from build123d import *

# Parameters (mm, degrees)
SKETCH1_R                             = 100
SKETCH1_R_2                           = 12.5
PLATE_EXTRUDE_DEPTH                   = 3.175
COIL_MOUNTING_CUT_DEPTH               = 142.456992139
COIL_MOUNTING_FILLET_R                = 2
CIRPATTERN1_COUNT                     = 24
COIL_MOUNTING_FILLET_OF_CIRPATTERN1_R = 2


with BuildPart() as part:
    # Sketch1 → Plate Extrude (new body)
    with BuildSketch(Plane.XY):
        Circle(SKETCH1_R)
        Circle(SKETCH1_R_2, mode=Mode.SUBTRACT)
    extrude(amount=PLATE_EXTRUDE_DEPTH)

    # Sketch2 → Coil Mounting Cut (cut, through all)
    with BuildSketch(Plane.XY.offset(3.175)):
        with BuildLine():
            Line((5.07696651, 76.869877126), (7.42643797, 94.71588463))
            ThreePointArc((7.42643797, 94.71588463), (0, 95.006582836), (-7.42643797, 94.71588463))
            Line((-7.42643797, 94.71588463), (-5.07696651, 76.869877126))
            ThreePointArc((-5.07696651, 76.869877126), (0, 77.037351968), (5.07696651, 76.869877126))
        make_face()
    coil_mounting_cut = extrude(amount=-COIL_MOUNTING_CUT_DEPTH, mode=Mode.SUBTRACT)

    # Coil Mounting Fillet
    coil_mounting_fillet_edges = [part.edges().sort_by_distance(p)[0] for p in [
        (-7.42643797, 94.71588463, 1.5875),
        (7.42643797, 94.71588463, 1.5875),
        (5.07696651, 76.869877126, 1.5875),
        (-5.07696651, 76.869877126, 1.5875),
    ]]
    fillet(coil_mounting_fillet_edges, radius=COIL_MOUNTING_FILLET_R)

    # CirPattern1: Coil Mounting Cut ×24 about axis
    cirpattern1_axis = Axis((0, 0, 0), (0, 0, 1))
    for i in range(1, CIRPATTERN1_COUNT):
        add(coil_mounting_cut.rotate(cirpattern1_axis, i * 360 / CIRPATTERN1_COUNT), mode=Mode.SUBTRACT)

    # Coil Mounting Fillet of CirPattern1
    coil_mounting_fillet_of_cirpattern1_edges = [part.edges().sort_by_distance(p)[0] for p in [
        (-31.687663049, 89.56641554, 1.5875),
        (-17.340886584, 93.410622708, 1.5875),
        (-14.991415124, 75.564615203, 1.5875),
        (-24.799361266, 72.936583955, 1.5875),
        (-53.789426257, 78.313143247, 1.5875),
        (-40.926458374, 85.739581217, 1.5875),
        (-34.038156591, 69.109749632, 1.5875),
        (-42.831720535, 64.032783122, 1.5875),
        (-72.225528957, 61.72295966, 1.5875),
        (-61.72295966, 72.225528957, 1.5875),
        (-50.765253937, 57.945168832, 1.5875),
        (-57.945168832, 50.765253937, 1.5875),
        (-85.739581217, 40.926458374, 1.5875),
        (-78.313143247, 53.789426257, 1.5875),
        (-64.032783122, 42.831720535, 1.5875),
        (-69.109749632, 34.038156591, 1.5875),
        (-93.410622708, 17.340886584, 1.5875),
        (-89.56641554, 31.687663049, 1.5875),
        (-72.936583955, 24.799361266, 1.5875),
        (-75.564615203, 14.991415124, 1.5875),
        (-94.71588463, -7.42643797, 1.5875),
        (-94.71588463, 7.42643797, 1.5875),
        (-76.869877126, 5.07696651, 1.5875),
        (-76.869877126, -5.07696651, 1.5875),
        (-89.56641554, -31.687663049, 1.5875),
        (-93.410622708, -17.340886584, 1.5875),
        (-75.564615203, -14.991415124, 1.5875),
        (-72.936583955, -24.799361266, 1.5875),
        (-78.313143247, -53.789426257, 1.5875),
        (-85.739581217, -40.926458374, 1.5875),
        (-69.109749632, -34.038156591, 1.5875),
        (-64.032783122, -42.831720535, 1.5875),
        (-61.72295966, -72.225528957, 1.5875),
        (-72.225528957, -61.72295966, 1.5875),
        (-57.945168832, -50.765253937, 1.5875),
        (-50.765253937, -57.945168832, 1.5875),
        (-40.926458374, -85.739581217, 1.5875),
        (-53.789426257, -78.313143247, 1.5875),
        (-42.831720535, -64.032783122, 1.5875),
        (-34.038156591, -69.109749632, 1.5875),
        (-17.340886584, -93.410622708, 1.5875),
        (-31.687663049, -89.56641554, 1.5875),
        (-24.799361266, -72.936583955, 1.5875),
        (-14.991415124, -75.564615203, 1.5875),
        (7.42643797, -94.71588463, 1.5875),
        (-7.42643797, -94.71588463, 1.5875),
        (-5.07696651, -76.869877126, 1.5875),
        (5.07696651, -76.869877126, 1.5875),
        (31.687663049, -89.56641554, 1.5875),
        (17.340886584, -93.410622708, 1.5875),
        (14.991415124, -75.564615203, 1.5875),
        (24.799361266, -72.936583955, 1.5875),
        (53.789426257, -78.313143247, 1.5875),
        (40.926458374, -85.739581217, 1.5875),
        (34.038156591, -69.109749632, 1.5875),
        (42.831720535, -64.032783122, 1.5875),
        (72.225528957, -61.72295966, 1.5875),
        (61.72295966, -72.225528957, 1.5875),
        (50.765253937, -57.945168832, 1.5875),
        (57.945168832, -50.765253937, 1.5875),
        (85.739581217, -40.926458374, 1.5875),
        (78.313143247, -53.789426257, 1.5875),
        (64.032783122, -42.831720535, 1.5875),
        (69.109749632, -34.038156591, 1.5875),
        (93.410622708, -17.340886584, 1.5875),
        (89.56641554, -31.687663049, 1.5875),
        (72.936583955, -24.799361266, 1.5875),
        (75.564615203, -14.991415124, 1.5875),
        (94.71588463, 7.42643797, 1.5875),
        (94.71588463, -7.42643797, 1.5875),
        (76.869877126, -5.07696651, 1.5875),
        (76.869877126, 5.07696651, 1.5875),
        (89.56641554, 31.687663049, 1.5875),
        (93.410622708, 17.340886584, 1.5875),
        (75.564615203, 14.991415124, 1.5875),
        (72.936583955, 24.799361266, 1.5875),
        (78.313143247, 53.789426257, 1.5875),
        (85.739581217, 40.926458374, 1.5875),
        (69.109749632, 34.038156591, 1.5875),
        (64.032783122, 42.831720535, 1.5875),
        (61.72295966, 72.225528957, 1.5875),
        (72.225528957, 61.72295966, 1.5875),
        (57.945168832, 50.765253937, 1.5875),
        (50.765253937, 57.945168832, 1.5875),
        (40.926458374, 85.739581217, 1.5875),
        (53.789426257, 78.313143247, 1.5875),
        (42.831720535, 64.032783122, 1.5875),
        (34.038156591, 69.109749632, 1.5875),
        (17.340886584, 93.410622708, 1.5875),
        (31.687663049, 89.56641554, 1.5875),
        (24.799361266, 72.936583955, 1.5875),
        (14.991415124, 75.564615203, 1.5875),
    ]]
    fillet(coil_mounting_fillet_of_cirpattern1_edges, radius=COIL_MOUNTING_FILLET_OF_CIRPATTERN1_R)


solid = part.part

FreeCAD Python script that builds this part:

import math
import FreeCAD as App
import Part
import Sketcher

V = App.Vector
Q = App.Units.Quantity


def edges_at(feature, points):
    """Names of the edges that pass closest to the given points."""
    edges = feature.Shape.Edges
    near = lambda p: min(range(len(edges)), key=lambda i: edges[i].distToShape(Part.Vertex(*p))[0])
    return sorted({f"Edge{near(p) + 1}" for p in points})

doc = App.newDocument("Part")
body = doc.addObject("PartDesign::Body", "Body")

# Sketch on XY plane
sketch1 = body.newObject("Sketcher::SketchObject", "Sketch")
sketch1.AttachmentSupport = (doc.getObject("XY_Plane"), [""])
sketch1.MapMode = "FlatFace"
sketch1.addGeometry(Part.Circle(V(0, 0, 0), V(0, 0, 1), 100), False)
sketch1.addGeometry(Part.Circle(V(0, 0, 0), V(0, 0, 1), 12), False)
sketch1.addConstraint(Sketcher.Constraint("Coincident", 0, 3, -1, 1))
sketch1.addConstraint(Sketcher.Constraint("Coincident", 1, 3, -1, 1))
sketch1.addConstraint(Sketcher.Constraint("Diameter", 0, 200.0))
sketch1.addConstraint(Sketcher.Constraint("Diameter", 1, 25.0))
pad1 = body.newObject("PartDesign::Pad", "Pad")
pad1.Profile = sketch1
pad1.Length = 3.175

# Sketch on XY plane
sketch2 = body.newObject("Sketcher::SketchObject", "Sketch001")
sketch2.AttachmentSupport = (doc.getObject("XY_Plane"), [""])
sketch2.MapMode = "FlatFace"
sketch2.AttachmentOffset = App.Placement(V(0, 0, 3.175), App.Rotation())
sketch2.addGeometry(Part.LineSegment(V(5, 77, 0), V(7, 95, 0)), False)
sketch2.addGeometry(Part.ArcOfCircle(Part.Circle(V(0, 0, 0), V(0, 0, 1), 95), math.radians(85.52), math.radians(94.48)), False)
sketch2.addGeometry(Part.LineSegment(V(-7, 95, 0), V(-5, 77, 0)), False)
sketch2.addGeometry(Part.ArcOfCircle(Part.Circle(V(0, 0, 0), V(0, 0, 1), 77), math.radians(86.22), math.radians(93.78)), False)
sketch2.addConstraint(Sketcher.Constraint("Coincident", 0, 2, 1, 1))
sketch2.addConstraint(Sketcher.Constraint("Coincident", 1, 2, 2, 1))
sketch2.addConstraint(Sketcher.Constraint("Coincident", 2, 2, 3, 2))
sketch2.addConstraint(Sketcher.Constraint("Coincident", 3, 1, 0, 1))
sketch2.addConstraint(Sketcher.Constraint("Coincident", 1, 3, -1, 1))
sketch2.addConstraint(Sketcher.Constraint("Coincident", 3, 3, -1, 1))
sketch2.addConstraint(Sketcher.Constraint("Horizontal", 0, 2, 1, 2))
sketch2.addConstraint(Sketcher.Constraint("Horizontal", 2, 2, 3, 1))
sketch2.addConstraint(Sketcher.Constraint("Distance", 0, 18.0))
sketch2.addConstraint(Sketcher.Constraint("Angle", 0, Q("82.5 deg")))
sketch2.addConstraint(Sketcher.Constraint("Radius", 1, 95.006583))
sketch2.addConstraint(Sketcher.Constraint("Radius", 3, 77.037352))
pocket1 = body.newObject("PartDesign::Pocket", "Pocket")
pocket1.Profile = sketch2
pocket1.Type = "ThroughAll"
doc.recompute()

fillet = body.newObject("PartDesign::Fillet", "Fillet")
fillet.Base = (pocket1, edges_at(pocket1, [
    (-7.426, 94.716, 1.587),
    (7.426, 94.716, 1.587),
    (5.077, 76.87, 1.587),
    (-5.077, 76.87, 1.587),
]))
fillet.Radius = 2
doc.recompute()

polarpattern = body.newObject("PartDesign::PolarPattern", "PolarPattern")
polarpattern.Originals = [pocket1]
polarpattern.Axis = (doc.getObject("Z_Axis"), [""])
polarpattern.Angle = 360
polarpattern.Occurrences = 24
body.Tip = polarpattern
doc.recompute()

fillet2 = body.newObject("PartDesign::Fillet", "Fillet001")
fillet2.Base = (polarpattern, edges_at(polarpattern, [
    (-31.688, 89.566, 1.587),
    (-17.341, 93.411, 1.587),
    (-14.991, 75.565, 1.587),
    (-24.799, 72.937, 1.587),
    (-53.789, 78.313, 1.587),
    (-40.926, 85.74, 1.587),
    (-34.038, 69.11, 1.587),
    (-42.832, 64.033, 1.587),
    (-72.226, 61.723, 1.587),
    (-61.723, 72.226, 1.587),
    (-50.765, 57.945, 1.587),
    (-57.945, 50.765, 1.587),
    (-85.74, 40.926, 1.587),
    (-78.313, 53.789, 1.587),
    (-64.033, 42.832, 1.587),
    (-69.11, 34.038, 1.587),
    (-93.411, 17.341, 1.587),
    (-89.566, 31.688, 1.587),
    (-72.937, 24.799, 1.587),
    (-75.565, 14.991, 1.587),
    (-94.716, -7.426, 1.587),
    (-94.716, 7.426, 1.587),
    (-76.87, 5.077, 1.587),
    (-76.87, -5.077, 1.587),
    (-89.566, -31.688, 1.587),
    (-93.411, -17.341, 1.587),
    (-75.565, -14.991, 1.587),
    (-72.937, -24.799, 1.587),
    (-78.313, -53.789, 1.587),
    (-85.74, -40.926, 1.587),
    (-69.11, -34.038, 1.587),
    (-64.033, -42.832, 1.587),
    (-61.723, -72.226, 1.587),
    (-72.226, -61.723, 1.587),
    (-57.945, -50.765, 1.587),
    (-50.765, -57.945, 1.587),
    (-40.926, -85.74, 1.587),
    (-53.789, -78.313, 1.587),
    (-42.832, -64.033, 1.587),
    (-34.038, -69.11, 1.587),
    (-17.341, -93.411, 1.587),
    (-31.688, -89.566, 1.587),
    (-24.799, -72.937, 1.587),
    (-14.991, -75.565, 1.587),
    (7.426, -94.716, 1.587),
    (-7.426, -94.716, 1.587),
    (-5.077, -76.87, 1.587),
    (5.077, -76.87, 1.587),
    (31.688, -89.566, 1.587),
    (17.341, -93.411, 1.587),
    (14.991, -75.565, 1.587),
    (24.799, -72.937, 1.587),
    (53.789, -78.313, 1.587),
    (40.926, -85.74, 1.587),
    (34.038, -69.11, 1.587),
    (42.832, -64.033, 1.587),
    (72.226, -61.723, 1.587),
    (61.723, -72.226, 1.587),
    (50.765, -57.945, 1.587),
    (57.945, -50.765, 1.587),
    (85.74, -40.926, 1.587),
    (78.313, -53.789, 1.587),
    (64.033, -42.832, 1.587),
    (69.11, -34.038, 1.587),
    (93.411, -17.341, 1.587),
    (89.566, -31.688, 1.587),
    (72.937, -24.799, 1.587),
    (75.565, -14.991, 1.587),
    (94.716, 7.426, 1.587),
    (94.716, -7.426, 1.587),
    (76.87, -5.077, 1.587),
    (76.87, 5.077, 1.587),
    (89.566, 31.688, 1.587),
    (93.411, 17.341, 1.587),
    (75.565, 14.991, 1.587),
    (72.937, 24.799, 1.587),
    (78.313, 53.789, 1.587),
    (85.74, 40.926, 1.587),
    (69.11, 34.038, 1.587),
    (64.033, 42.832, 1.587),
    (61.723, 72.226, 1.587),
    (72.226, 61.723, 1.587),
    (57.945, 50.765, 1.587),
    (50.765, 57.945, 1.587),
    (40.926, 85.74, 1.587),
    (53.789, 78.313, 1.587),
    (42.832, 64.033, 1.587),
    (34.038, 69.11, 1.587),
    (17.341, 93.411, 1.587),
    (31.688, 89.566, 1.587),
    (24.799, 72.937, 1.587),
    (14.991, 75.565, 1.587),
]))
fillet2.Radius = 2

doc.recompute()
